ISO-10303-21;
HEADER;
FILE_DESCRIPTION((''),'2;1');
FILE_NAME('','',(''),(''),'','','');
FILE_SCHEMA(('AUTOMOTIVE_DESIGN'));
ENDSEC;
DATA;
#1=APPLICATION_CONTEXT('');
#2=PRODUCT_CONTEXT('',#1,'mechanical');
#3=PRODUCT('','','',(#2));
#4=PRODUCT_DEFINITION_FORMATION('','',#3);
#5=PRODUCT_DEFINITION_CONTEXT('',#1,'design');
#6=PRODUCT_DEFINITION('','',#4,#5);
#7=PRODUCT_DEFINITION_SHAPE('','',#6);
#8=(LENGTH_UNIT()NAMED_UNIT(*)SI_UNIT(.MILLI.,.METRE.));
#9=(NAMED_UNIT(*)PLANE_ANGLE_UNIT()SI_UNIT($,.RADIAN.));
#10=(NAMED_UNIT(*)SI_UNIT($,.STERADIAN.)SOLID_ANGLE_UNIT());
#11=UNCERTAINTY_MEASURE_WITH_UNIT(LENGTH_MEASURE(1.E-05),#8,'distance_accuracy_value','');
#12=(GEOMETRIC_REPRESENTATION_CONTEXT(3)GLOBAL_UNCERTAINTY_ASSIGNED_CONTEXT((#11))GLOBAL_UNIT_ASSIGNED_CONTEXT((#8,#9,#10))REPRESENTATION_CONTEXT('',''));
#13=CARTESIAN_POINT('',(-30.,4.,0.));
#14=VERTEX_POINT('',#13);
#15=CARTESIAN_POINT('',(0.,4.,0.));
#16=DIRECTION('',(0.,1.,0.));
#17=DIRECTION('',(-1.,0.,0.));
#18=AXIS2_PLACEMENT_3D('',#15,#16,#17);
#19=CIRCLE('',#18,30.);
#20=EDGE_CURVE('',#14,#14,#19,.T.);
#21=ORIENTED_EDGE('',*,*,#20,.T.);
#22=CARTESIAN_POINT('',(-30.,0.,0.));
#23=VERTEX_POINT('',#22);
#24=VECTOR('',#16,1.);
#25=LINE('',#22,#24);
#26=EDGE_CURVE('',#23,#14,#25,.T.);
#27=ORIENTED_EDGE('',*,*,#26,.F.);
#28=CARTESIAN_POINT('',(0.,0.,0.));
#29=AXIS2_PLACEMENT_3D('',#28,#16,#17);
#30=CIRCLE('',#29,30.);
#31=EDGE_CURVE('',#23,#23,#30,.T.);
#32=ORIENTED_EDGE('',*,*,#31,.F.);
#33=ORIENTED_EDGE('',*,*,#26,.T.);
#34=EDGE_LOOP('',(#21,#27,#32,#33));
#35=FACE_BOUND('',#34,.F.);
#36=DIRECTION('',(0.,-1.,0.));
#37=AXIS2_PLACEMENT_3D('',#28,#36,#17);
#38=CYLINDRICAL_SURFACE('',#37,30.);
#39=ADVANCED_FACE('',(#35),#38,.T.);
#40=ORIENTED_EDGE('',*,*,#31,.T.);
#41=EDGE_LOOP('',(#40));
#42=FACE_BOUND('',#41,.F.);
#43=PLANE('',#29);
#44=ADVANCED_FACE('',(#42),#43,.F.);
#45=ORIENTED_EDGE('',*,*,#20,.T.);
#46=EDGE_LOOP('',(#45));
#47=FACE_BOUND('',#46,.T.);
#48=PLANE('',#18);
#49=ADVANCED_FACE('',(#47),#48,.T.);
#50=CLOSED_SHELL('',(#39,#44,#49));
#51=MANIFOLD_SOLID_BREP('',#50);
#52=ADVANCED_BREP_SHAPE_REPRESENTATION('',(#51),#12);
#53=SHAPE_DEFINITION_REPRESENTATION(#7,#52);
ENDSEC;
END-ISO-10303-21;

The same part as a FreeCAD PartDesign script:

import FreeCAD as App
import Part
import Sketcher

V = App.Vector

doc = App.newDocument("Part")
body = doc.addObject("PartDesign::Body", "Body")

# Sketch on XZ plane
sketch1 = doc.addObject("Sketcher::SketchObject", "Sketch")
body.addObject(sketch1)
sketch1.AttachmentSupport = (doc.XZ_Plane, [""])
sketch1.MapMode = "FlatFace"
sketch1.addGeometry(Part.Circle(V(0, 0, 0), V(0, 0, 1), 30), False)
sketch1.addConstraint(Sketcher.Constraint("Coincident", 0, 3, -1, 1))
sketch1.addConstraint(Sketcher.Constraint("Diameter", 0, 60.0))
pad1 = doc.addObject("PartDesign::Pad", "Pad")
body.addObject(pad1)
pad1.Profile = sketch1
pad1.Length = 4
pad1.Reversed = True

doc.recompute()
